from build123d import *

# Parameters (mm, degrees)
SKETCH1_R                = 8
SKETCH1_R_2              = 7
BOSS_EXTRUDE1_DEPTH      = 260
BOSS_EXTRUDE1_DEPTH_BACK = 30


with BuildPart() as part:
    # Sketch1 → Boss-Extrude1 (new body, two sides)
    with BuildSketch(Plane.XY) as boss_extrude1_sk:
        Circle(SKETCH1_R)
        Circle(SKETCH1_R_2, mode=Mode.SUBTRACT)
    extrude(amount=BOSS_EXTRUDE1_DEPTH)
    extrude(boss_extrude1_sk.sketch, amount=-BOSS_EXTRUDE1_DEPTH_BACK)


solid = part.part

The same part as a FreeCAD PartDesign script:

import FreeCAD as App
import Part
import Sketcher
Q = App.Units.Quantity

doc = App.newDocument("Part")
body = doc.addObject("PartDesign::Body", "Body")

sketch1 = body.newObject("Sketcher::SketchObject", "Sketch")
sketch1.AttachmentSupport = (doc.getObject("XY_Plane"), [""])
sketch1.MapMode = "FlatFace"
sketch1.addGeometry([
    Part.Circle(App.Vector(0, 0, 0), App.Vector(0, 0, 1), 8),
    Part.Circle(App.Vector(0, 0, 0), App.Vector(0, 0, 1), 7),
], False)
sketch1.addConstraint([
    Sketcher.Constraint("Coincident", 0, 3, -1, 1),
    Sketcher.Constraint("Coincident", 1, 3, -1, 1),
    Sketcher.Constraint("Diameter", 0, Q("16 mm")),
    Sketcher.Constraint("Diameter", 1, Q("14 mm")),
])
pad1 = body.newObject("PartDesign::Pad", "Pad")
pad1.Profile = sketch1
pad1.Type = "TwoLengths"
pad1.Length = 260
pad1.Length2 = 30

doc.recompute()
